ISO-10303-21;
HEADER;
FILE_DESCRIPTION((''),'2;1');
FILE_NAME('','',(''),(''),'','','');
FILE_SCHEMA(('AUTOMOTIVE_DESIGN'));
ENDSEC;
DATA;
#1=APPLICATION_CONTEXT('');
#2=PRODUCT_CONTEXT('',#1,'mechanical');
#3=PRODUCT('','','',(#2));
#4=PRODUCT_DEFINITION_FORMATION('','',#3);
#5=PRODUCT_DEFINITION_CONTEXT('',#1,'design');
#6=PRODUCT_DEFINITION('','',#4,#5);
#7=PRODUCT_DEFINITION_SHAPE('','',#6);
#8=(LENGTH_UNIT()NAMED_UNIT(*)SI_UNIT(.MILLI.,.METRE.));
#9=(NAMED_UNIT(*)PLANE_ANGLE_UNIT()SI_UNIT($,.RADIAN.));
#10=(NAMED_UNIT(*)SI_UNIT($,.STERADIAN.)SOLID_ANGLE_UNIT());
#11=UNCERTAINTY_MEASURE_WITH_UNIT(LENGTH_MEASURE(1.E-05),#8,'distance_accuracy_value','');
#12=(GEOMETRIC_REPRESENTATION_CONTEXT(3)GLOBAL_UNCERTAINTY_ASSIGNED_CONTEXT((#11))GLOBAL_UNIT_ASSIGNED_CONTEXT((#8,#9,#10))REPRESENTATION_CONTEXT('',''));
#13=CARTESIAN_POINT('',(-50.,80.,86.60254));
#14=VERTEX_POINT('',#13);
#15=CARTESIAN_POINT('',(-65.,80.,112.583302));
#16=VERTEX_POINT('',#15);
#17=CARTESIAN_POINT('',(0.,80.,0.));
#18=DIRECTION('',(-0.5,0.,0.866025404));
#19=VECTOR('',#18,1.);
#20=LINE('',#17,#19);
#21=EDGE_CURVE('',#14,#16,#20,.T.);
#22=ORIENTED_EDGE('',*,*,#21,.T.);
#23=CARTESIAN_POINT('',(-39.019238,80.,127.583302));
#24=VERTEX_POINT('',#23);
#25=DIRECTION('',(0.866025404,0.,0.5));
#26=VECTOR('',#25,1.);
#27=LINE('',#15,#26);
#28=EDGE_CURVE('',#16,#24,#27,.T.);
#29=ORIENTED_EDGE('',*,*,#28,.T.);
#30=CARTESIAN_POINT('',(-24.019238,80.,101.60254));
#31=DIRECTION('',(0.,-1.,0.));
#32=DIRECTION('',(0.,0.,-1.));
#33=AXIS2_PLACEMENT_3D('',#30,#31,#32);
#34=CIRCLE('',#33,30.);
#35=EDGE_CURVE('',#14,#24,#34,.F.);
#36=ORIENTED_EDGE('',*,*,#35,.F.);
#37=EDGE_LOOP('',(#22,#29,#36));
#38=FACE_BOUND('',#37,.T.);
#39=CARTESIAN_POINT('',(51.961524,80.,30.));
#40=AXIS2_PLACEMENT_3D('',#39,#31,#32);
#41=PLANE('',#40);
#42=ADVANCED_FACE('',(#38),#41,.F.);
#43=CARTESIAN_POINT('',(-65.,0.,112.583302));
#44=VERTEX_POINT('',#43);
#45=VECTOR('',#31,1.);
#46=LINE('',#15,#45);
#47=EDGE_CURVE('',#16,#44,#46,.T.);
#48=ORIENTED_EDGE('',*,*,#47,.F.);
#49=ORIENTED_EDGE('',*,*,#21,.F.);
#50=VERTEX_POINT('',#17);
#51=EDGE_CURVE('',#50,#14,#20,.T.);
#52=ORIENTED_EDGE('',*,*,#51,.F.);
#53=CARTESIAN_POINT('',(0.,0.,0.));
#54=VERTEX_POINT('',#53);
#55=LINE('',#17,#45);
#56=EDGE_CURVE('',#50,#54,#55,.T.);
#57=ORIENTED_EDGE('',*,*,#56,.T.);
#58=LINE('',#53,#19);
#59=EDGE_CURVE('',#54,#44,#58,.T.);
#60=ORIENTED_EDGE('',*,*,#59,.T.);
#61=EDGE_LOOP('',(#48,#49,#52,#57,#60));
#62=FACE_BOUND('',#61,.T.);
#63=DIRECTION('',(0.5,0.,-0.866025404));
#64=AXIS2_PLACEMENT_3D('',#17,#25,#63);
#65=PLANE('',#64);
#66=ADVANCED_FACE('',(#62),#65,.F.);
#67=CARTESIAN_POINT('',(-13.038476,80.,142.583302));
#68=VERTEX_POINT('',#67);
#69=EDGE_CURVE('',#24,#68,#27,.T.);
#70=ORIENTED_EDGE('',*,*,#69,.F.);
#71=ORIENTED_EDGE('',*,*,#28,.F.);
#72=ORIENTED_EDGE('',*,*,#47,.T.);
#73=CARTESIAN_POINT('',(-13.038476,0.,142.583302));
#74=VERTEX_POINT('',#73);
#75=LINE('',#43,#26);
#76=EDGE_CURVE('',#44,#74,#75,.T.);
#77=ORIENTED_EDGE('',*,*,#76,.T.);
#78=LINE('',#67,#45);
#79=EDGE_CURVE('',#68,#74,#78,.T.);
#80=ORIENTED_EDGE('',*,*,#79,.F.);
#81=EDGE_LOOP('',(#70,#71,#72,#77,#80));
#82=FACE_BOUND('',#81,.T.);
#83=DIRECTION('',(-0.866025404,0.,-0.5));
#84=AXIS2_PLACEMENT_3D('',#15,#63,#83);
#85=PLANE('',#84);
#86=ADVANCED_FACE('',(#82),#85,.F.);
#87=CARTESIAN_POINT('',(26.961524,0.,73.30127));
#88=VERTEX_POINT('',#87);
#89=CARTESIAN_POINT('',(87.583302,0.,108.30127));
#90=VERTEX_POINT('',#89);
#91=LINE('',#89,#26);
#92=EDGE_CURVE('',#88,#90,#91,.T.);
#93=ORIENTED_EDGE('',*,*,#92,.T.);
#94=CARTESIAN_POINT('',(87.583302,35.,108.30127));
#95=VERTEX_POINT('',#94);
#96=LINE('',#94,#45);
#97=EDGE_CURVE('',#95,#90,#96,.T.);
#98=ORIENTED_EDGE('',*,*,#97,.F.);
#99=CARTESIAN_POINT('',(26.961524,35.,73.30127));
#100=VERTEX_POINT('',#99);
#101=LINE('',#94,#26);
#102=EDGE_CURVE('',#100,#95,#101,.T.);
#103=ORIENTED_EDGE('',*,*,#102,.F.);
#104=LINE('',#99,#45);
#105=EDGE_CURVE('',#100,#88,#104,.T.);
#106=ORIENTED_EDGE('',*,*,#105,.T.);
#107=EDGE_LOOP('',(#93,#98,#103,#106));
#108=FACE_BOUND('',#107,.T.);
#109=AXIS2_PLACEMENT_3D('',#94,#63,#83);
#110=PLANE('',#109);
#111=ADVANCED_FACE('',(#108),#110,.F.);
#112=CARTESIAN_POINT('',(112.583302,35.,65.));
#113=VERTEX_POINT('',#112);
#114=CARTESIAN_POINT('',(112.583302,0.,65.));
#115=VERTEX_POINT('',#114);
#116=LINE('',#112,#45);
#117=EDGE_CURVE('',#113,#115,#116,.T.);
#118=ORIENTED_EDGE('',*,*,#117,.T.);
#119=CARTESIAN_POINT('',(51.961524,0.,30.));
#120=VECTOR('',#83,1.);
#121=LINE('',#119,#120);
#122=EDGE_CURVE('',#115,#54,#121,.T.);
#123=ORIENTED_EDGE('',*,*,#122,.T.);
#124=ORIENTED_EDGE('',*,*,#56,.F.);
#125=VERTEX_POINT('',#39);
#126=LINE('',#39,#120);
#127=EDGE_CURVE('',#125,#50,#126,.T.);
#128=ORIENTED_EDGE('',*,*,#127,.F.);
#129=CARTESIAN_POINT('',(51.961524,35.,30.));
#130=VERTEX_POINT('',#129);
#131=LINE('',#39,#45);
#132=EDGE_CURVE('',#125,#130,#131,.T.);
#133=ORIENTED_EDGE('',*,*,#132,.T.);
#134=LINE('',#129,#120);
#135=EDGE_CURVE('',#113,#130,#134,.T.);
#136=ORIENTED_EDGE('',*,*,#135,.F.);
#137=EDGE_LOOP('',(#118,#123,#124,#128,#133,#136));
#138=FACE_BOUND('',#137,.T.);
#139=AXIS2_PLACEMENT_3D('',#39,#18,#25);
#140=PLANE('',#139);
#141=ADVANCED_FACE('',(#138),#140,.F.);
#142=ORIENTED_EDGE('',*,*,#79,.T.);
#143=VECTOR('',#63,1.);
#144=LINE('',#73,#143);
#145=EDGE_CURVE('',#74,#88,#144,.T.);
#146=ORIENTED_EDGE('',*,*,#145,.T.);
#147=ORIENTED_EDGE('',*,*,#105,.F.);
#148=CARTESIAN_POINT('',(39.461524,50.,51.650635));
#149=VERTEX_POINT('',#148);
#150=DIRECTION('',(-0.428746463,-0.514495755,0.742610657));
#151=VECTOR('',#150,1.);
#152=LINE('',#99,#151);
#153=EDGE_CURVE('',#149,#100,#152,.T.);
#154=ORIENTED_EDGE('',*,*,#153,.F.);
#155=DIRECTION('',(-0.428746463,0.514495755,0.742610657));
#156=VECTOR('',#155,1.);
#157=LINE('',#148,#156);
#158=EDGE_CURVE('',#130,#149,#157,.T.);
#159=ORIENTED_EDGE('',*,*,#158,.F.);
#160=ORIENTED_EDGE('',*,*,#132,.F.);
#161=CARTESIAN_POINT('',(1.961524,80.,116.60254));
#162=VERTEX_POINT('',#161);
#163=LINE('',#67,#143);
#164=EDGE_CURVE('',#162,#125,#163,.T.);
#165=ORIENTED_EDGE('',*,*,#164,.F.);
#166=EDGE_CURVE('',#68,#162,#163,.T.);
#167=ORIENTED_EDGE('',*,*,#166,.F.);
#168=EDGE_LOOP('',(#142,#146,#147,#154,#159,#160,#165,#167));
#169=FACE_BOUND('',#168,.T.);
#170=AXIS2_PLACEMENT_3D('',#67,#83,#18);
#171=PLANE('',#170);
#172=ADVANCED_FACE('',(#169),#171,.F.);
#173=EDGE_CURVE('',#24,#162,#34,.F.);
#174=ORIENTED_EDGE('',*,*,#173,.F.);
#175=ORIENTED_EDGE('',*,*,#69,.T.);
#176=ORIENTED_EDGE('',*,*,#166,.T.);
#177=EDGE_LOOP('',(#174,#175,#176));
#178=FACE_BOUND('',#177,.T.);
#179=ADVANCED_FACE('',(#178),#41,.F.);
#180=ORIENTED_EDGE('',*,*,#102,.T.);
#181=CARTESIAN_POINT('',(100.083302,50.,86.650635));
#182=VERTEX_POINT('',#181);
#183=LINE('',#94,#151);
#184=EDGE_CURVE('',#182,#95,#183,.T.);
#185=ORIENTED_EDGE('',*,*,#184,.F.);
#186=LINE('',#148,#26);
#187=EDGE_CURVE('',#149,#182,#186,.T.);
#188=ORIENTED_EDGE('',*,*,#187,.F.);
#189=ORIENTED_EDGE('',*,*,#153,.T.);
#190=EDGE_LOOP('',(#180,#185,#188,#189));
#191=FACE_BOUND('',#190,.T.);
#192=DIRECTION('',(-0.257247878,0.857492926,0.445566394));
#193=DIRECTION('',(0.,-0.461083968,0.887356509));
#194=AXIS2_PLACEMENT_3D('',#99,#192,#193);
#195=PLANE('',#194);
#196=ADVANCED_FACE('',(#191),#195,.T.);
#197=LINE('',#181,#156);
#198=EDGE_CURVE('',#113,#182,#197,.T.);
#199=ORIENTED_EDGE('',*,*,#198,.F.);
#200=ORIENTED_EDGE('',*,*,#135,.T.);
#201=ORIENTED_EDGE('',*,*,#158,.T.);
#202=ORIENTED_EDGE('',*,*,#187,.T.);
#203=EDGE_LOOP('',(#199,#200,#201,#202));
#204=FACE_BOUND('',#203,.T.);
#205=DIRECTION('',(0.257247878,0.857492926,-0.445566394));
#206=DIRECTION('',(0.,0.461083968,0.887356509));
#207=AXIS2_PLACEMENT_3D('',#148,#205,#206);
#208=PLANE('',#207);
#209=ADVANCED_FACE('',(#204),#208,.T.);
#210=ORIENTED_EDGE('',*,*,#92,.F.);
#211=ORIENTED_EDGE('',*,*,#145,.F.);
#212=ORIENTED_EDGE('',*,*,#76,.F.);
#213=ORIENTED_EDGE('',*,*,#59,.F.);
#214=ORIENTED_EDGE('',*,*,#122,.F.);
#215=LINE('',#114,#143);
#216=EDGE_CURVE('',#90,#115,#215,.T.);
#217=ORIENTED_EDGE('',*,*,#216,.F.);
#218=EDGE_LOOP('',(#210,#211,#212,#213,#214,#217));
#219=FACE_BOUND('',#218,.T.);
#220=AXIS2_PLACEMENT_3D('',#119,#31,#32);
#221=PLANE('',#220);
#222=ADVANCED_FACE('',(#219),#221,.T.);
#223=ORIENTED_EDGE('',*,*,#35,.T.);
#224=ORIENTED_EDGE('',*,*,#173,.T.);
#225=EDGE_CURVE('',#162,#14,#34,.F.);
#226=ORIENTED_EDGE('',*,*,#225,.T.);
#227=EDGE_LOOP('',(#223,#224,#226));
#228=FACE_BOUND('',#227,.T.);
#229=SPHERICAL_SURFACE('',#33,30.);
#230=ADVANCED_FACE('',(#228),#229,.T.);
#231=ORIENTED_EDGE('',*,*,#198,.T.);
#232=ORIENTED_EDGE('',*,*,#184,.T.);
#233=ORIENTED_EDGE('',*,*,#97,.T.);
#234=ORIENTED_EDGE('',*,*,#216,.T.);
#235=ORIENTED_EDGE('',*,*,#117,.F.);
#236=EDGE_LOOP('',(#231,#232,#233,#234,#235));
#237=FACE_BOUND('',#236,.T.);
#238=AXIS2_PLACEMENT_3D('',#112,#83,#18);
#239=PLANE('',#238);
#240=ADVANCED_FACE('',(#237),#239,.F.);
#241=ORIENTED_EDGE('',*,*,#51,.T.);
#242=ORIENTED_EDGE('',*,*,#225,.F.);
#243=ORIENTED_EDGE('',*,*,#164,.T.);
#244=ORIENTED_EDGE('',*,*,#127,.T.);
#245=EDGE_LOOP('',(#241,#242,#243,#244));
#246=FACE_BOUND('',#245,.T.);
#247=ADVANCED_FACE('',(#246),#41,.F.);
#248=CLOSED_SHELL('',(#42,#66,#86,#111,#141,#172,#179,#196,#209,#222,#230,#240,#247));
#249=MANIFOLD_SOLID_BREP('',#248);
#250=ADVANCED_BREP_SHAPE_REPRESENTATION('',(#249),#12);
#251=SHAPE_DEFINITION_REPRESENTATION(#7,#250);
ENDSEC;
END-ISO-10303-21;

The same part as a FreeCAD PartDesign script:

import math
import FreeCAD as App
import Part
import Sketcher

V = App.Vector
Q = App.Units.Quantity


def add_polygon(sketch, points):
    """Adds a closed chain of lines whose ends are joined by coincident constraints."""
    first, n = sketch.GeometryCount, len(points)
    for a, b in zip(points, points[1:] + points[:1]):
        sketch.addGeometry(Part.LineSegment(App.Vector(*a, 0), App.Vector(*b, 0)), False)
    for i in range(n):
        sketch.addConstraint(Sketcher.Constraint("Coincident", first + i, 2, first + (i + 1) % n, 1))

doc = App.newDocument("Part")
body = doc.addObject("PartDesign::Body", "Body")

# Sketch on XZ plane
sketch1 = doc.addObject("Sketcher::SketchObject", "Sketch")
body.addObject(sketch1)
sketch1.AttachmentSupport = (doc.XZ_Plane, [""])
sketch1.MapMode = "FlatFace"
add_polygon(sketch1, [(0, 0), (-65, 113), (-13, 143), (52, 30)])  # lines 0-3
sketch1.addConstraint(Sketcher.Constraint("Coincident", 3, 2, -1, 1))
sketch1.addConstraint(Sketcher.Constraint("Perpendicular", 0, 1))
sketch1.addConstraint(Sketcher.Constraint("Perpendicular", 1, 2))
sketch1.addConstraint(Sketcher.Constraint("Perpendicular", 2, 3))
sketch1.addConstraint(Sketcher.Constraint("Angle", 0, Q("120 deg")))
sketch1.addConstraint(Sketcher.Constraint("Distance", 0, 130.0))
sketch1.addConstraint(Sketcher.Constraint("Distance", 1, 60.0))
pad1 = doc.addObject("PartDesign::Pad", "Pad")
body.addObject(pad1)
pad1.Profile = sketch1
pad1.Length = 80
pad1.Reversed = True

# Sketch on XZ plane
sketch2 = doc.addObject("Sketcher::SketchObject", "Sketch001")
body.addObject(sketch2)
sketch2.AttachmentSupport = (doc.XZ_Plane, [""])
sketch2.MapMode = "FlatFace"
sketch2.AttachmentOffset = App.Placement(V(0, 0, -80), App.Rotation())
sketch2.addGeometry(Part.LineSegment(V(-24, 72, 0), V(-24, 132, 0)), False)
sketch2.addGeometry(Part.ArcOfCircle(Part.Circle(V(-24, 102, 0), V(0, 0, 1), 30), math.radians(-90), math.radians(90)), False)
sketch2.addGeometry(Part.LineSegment(V(-24, 72, 0), V(-24, 132, 0)), True)  # axis
sketch2.addConstraint(Sketcher.Constraint("Coincident", 0, 1, 1, 1))
sketch2.addConstraint(Sketcher.Constraint("Coincident", 1, 2, 0, 2))
sketch2.addConstraint(Sketcher.Constraint("Vertical", 0))
sketch2.addConstraint(Sketcher.Constraint("Vertical", 2))
sketch2.addConstraint(Sketcher.Constraint("Coincident", 2, 1, 0, 1))
sketch2.addConstraint(Sketcher.Constraint("Vertical", 1, 3, 0, 1))
sketch2.addConstraint(Sketcher.Constraint("Equal", 0, 2))
sketch2.addConstraint(Sketcher.Constraint("Radius", 1, 30.0))
sketch2.addConstraint(Sketcher.Constraint("DistanceY", -1, 1, 1, 3, 101.60254))
sketch2.addConstraint(Sketcher.Constraint("DistanceX", 1, 3, -1, 1, 24.019238))
revolution = doc.addObject("PartDesign::Revolution", "Revolution")
body.addObject(revolution)
revolution.Profile = sketch2
revolution.ReferenceAxis = (sketch2, ["Axis0"])
revolution.Angle = 360

# Sketch on XZ plane
sketch3 = doc.addObject("Sketcher::SketchObject", "Sketch002")
body.addObject(sketch3)
sketch3.AttachmentSupport = (doc.XZ_Plane, [""])
sketch3.MapMode = "FlatFace"
add_polygon(sketch3, [(113, 65), (52, 30), (27, 73), (88, 108)])  # lines 0-3
sketch3.addConstraint(Sketcher.Constraint("Perpendicular", 0, 1))
sketch3.addConstraint(Sketcher.Constraint("Perpendicular", 1, 2))
sketch3.addConstraint(Sketcher.Constraint("Perpendicular", 2, 3))
sketch3.addConstraint(Sketcher.Constraint("Angle", 0, Q("-150 deg")))
sketch3.addConstraint(Sketcher.Constraint("Distance", 0, 70.0))
sketch3.addConstraint(Sketcher.Constraint("Distance", 1, 50.0))
sketch3.addConstraint(Sketcher.Constraint("DistanceY", -1, 1, 0, 2, 30.0))
sketch3.addConstraint(Sketcher.Constraint("DistanceX", -1, 1, 0, 2, 51.961524))
pad2 = doc.addObject("PartDesign::Pad", "Pad001")
body.addObject(pad2)
pad2.Profile = sketch3
pad2.Length = 35
pad2.Reversed = True

# Sketch on an angled plane
sketch4 = doc.addObject("Sketcher::SketchObject", "Sketch003")
body.addObject(sketch4)
sketch4.Placement = App.Placement(V(112.583302, 0, 65), App.Rotation(V(0.5, 0, -0.866025404), V(0, 1, 0), V(0.866025404, 0, 0.5), "ZXY"))
add_polygon(sketch4, [(-50, 35), (0, 35), (-25, 50)])  # lines 0-2
sketch4.addConstraint(Sketcher.Constraint("Horizontal", 0))
sketch4.addConstraint(Sketcher.Constraint("PointOnObject", 0, 2, -2))
sketch4.addConstraint(Sketcher.Constraint("Equal", 1, 2))
sketch4.addConstraint(Sketcher.Constraint("DistanceX", 0, 1, 0, 2, 50.0))
sketch4.addConstraint(Sketcher.Constraint("DistanceY", -1, 1, 0, 2, 35.0))
sketch4.addConstraint(Sketcher.Constraint("DistanceY", -1, 1, 1, 2, 50.0))
pad3 = doc.addObject("PartDesign::Pad", "Pad002")
body.addObject(pad3)
pad3.Profile = sketch4
pad3.Length = 70
pad3.Reversed = True

doc.recompute()
